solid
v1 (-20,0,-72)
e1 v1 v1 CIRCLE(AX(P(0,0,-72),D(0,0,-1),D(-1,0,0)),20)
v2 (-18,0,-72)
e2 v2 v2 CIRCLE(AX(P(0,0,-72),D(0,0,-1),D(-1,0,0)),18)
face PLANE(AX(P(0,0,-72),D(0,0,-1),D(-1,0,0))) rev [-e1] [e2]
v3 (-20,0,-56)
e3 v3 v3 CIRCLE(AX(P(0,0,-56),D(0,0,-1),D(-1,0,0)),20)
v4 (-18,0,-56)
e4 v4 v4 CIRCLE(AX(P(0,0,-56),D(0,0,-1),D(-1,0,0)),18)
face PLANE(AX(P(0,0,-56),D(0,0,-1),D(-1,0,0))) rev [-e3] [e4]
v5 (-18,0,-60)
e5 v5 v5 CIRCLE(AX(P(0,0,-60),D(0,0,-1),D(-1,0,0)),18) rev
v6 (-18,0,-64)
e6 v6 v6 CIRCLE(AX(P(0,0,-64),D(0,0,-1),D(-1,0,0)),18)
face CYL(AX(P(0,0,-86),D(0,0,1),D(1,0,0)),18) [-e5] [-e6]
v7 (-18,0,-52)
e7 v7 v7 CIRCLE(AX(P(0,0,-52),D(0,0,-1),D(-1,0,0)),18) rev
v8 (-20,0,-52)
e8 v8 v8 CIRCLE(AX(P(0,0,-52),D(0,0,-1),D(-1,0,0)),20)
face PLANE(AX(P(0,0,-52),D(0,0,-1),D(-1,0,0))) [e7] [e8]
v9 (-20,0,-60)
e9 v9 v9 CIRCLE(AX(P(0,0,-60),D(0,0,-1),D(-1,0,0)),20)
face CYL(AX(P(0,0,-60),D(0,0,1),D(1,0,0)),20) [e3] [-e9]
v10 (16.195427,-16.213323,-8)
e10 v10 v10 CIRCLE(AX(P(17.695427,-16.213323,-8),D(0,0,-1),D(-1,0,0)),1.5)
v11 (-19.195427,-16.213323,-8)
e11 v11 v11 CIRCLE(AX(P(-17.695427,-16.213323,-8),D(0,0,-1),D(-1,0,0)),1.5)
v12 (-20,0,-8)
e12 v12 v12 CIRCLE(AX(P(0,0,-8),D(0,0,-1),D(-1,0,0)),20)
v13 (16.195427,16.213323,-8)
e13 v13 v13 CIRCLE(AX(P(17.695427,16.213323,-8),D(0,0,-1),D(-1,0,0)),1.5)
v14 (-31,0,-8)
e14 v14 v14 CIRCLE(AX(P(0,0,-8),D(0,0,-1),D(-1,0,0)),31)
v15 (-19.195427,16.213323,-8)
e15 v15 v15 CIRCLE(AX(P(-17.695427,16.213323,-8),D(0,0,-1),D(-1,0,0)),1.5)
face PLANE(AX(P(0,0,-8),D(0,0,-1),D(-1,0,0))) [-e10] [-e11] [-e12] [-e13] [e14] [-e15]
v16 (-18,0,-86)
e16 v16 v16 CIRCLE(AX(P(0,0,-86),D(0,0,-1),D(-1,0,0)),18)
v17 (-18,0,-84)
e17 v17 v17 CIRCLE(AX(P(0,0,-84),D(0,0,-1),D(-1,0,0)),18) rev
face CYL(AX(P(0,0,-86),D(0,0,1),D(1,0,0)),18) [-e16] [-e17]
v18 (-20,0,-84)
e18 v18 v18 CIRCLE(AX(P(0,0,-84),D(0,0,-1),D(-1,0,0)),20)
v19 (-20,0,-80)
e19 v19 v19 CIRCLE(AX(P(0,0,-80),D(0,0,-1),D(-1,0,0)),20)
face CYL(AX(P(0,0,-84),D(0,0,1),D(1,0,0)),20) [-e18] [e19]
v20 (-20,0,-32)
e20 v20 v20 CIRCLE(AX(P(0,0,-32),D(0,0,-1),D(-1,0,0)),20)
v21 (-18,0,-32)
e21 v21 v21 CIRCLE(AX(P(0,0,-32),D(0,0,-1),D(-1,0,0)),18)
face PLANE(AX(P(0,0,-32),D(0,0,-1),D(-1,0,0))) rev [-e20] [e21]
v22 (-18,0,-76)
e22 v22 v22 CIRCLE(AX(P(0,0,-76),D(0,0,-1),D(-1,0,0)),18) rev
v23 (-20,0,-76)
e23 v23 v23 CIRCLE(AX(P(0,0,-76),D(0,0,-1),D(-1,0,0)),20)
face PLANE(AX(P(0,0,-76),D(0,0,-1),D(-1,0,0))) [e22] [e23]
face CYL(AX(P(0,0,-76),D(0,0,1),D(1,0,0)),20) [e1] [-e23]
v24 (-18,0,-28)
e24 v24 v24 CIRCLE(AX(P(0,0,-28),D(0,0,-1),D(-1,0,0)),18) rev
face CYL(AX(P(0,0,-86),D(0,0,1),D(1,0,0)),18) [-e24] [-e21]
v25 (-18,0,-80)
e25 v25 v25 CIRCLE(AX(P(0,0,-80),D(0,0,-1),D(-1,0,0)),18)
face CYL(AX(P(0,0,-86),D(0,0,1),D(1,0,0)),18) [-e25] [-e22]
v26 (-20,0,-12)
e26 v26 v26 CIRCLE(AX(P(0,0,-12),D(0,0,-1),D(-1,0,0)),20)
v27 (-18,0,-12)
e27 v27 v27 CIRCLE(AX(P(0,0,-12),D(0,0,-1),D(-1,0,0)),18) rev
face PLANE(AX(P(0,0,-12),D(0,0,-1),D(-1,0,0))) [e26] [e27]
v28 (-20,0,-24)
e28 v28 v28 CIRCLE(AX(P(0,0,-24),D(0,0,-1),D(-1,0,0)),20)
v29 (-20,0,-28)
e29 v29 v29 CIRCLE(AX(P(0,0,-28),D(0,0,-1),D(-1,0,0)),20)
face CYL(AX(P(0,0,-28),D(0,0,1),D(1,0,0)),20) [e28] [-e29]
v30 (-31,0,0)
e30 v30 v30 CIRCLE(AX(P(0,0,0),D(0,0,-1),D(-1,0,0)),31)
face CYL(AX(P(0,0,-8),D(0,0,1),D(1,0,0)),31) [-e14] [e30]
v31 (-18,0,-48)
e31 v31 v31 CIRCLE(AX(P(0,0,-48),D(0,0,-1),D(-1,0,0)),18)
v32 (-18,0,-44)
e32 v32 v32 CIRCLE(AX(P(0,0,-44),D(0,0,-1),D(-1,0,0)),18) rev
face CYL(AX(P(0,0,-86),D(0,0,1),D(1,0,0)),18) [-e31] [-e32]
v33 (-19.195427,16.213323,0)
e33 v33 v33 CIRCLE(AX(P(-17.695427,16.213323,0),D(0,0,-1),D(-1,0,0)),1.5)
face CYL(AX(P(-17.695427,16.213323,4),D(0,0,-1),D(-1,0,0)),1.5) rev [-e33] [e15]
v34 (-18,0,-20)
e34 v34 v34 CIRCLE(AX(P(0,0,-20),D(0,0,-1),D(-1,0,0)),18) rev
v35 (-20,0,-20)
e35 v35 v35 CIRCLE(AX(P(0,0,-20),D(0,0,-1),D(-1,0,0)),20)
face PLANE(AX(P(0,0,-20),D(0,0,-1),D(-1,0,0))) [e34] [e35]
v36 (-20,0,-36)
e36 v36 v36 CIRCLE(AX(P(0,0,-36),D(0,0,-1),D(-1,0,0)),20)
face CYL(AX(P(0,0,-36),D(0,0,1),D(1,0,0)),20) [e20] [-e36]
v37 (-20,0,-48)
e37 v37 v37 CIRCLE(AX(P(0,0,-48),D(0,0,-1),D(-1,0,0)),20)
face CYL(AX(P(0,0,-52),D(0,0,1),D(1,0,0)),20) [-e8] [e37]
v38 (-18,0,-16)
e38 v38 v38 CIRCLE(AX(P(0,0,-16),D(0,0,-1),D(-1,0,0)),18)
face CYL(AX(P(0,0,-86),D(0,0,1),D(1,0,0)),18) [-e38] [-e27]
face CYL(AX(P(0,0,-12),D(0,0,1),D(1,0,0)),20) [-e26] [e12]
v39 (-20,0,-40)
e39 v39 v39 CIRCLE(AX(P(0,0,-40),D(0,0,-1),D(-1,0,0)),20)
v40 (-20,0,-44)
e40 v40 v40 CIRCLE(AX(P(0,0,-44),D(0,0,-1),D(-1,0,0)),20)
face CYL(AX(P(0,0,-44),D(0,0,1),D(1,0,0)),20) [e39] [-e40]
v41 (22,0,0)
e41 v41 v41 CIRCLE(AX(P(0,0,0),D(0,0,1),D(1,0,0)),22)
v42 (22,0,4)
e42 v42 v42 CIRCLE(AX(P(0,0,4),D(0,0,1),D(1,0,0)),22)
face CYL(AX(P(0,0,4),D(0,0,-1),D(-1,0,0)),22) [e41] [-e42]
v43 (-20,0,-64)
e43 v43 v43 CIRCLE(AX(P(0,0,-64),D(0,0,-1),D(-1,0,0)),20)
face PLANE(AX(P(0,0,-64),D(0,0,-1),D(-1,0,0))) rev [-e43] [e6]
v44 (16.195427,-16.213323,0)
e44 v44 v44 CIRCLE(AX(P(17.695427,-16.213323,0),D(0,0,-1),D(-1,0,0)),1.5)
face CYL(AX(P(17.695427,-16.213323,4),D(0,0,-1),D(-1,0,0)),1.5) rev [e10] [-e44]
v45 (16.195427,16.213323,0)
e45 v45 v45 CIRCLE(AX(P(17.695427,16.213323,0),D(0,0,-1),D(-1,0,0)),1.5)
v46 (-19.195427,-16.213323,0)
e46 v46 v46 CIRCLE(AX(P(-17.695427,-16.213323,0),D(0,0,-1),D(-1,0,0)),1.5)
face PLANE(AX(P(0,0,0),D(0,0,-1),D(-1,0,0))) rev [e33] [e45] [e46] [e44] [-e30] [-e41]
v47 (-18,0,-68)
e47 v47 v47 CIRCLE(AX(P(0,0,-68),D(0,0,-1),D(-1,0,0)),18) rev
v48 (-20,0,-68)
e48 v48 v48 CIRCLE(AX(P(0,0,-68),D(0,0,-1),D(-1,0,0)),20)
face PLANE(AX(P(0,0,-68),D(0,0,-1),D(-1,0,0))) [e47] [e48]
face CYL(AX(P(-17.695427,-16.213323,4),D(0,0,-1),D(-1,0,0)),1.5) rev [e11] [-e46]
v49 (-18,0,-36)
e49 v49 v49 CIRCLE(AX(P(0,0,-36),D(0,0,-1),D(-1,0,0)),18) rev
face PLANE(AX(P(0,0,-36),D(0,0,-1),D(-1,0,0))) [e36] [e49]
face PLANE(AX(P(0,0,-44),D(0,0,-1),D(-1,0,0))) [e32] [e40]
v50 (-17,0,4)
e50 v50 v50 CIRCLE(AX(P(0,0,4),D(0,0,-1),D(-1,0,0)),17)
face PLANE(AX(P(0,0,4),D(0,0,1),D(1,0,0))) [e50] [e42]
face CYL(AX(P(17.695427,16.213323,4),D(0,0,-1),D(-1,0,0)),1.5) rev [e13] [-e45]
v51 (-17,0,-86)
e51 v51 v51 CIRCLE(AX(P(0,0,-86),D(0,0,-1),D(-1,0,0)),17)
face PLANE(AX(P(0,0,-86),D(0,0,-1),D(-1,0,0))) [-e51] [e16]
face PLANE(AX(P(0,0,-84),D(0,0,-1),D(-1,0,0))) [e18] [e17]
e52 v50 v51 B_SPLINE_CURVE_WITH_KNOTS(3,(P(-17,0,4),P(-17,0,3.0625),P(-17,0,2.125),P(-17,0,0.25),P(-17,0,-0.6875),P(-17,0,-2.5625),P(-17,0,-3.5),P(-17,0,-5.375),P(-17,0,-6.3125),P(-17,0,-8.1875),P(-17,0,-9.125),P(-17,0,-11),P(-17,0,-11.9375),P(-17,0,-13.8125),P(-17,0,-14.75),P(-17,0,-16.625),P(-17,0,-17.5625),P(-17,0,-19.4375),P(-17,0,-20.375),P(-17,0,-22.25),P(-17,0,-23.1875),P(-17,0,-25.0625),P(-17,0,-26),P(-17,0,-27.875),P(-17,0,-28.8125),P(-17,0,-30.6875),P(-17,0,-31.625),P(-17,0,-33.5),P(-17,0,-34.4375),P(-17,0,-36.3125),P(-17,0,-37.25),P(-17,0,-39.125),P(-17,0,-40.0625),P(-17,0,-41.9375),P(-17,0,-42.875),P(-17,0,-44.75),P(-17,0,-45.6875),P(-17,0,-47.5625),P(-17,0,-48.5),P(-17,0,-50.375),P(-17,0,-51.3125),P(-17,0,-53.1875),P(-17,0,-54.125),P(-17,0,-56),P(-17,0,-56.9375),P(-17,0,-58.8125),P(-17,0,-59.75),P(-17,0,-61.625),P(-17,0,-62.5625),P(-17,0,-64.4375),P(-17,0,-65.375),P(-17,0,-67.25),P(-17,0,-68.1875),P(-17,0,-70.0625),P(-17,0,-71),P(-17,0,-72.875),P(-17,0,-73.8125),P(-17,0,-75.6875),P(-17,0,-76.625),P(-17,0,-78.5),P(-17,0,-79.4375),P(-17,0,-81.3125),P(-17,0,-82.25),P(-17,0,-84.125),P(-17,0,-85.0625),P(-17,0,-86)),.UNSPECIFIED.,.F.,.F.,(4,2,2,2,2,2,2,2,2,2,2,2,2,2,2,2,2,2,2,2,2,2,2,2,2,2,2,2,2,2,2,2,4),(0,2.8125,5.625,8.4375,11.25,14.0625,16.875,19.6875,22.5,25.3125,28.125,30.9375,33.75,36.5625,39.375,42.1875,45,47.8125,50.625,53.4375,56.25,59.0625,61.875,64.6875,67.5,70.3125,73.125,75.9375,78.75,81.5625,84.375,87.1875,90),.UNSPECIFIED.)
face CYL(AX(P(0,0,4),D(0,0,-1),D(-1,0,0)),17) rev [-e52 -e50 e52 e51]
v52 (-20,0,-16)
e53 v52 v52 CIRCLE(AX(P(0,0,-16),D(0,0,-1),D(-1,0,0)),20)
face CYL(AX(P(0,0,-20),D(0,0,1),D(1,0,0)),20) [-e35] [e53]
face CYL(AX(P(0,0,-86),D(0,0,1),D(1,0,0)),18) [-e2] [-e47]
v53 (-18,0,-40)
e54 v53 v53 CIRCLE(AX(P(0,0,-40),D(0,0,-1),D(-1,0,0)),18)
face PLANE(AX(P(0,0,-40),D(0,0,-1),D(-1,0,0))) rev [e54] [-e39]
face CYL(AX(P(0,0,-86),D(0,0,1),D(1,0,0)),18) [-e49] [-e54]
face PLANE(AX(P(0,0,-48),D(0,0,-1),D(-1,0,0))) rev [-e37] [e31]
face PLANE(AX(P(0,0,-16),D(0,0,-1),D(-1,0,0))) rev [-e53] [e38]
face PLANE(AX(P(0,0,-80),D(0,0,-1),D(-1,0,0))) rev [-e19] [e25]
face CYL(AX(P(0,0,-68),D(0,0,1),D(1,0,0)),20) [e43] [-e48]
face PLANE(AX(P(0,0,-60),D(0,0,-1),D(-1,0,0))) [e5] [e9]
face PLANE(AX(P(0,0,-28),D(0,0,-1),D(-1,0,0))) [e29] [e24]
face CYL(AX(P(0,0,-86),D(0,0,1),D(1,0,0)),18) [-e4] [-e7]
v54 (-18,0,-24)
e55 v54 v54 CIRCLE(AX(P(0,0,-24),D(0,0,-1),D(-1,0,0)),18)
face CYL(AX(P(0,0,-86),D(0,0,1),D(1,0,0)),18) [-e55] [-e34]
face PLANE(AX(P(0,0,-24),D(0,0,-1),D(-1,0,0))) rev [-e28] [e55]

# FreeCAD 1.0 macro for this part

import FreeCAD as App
import Part
import Sketcher

V = App.Vector

doc = App.newDocument("Part")
body = doc.addObject("PartDesign::Body", "Body")

# Sketch on XY plane
sketch1 = body.newObject("Sketcher::SketchObject", "Sketch")
sketch1.AttachmentSupport = (doc.getObject("XY_Plane"), [""])
sketch1.MapMode = "FlatFace"
sketch1.addGeometry(Part.Circle(V(0, 0, 0), V(0, 0, 1), 22), False)
sketch1.addConstraint(Sketcher.Constraint("Coincident", 0, 3, -1, 1))
sketch1.addConstraint(Sketcher.Constraint("Diameter", 0, 44.0))
pad1 = body.newObject("PartDesign::Pad", "Pad")
pad1.Profile = sketch1
pad1.Length = 4

# Sketch on XY plane
sketch2 = body.newObject("Sketcher::SketchObject", "Sketch001")
sketch2.AttachmentSupport = (doc.getObject("XY_Plane"), [""])
sketch2.MapMode = "FlatFace"
sketch2.addGeometry(Part.Circle(V(0, 0, 0), V(0, 0, 1), 31), False)
sketch2.addConstraint(Sketcher.Constraint("Coincident", 0, 3, -1, 1))
sketch2.addConstraint(Sketcher.Constraint("Diameter", 0, 62.0))
pad2 = body.newObject("PartDesign::Pad", "Pad001")
pad2.Profile = sketch2
pad2.Length = 8
pad2.Reversed = True

# Sketch on XY plane
sketch3 = body.newObject("Sketcher::SketchObject", "Sketch002")
sketch3.AttachmentSupport = (doc.getObject("XY_Plane"), [""])
sketch3.MapMode = "FlatFace"
sketch3.AttachmentOffset = App.Placement(V(0, 0, -8), App.Rotation())
sketch3.addGeometry(Part.Circle(V(17.7, 16.2, 0), V(0, 0, 1), 1.5), False)
sketch3.addGeometry(Part.Circle(V(-17.7, 16.2, 0), V(0, 0, 1), 1.5), False)
sketch3.addGeometry(Part.Circle(V(-17.7, -16.2, 0), V(0, 0, 1), 1.5), False)
sketch3.addGeometry(Part.Circle(V(17.7, -16.2, 0), V(0, 0, 1), 1.5), False)
sketch3.addConstraint(Sketcher.Constraint("Equal", 0, 1))
sketch3.addConstraint(Sketcher.Constraint("Equal", 1, 2))
sketch3.addConstraint(Sketcher.Constraint("Equal", 2, 3))
sketch3.addConstraint(Sketcher.Constraint("Symmetric", 0, 3, 2, 3, -1, 1))
sketch3.addConstraint(Sketcher.Constraint("Symmetric", 1, 3, 3, 3, -1, 1))
sketch3.addConstraint(Sketcher.Constraint("Symmetric", 0, 3, 1, 3, -2))
sketch3.addConstraint(Sketcher.Constraint("Diameter", 0, 3.0))
sketch3.addConstraint(Sketcher.Constraint("DistanceX", -1, 1, 0, 3, 17.695427))
sketch3.addConstraint(Sketcher.Constraint("DistanceY", -1, 1, 0, 3, 16.213323))
pocket1 = body.newObject("PartDesign::Pocket", "Pocket")
pocket1.Profile = sketch3
pocket1.Type = "ThroughAll"
pocket1.Reversed = True

# Sketch on XY plane
sketch4 = body.newObject("Sketcher::SketchObject", "Sketch003")
sketch4.AttachmentSupport = (doc.getObject("XY_Plane"), [""])
sketch4.MapMode = "FlatFace"
sketch4.AttachmentOffset = App.Placement(V(0, 0, -8), App.Rotation())
sketch4.addGeometry(Part.Circle(V(0, 0, 0), V(0, 0, 1), 18), False)
sketch4.addConstraint(Sketcher.Constraint("Coincident", 0, 3, -1, 1))
sketch4.addConstraint(Sketcher.Constraint("Diameter", 0, 36.0))
pad3 = body.newObject("PartDesign::Pad", "Pad002")
pad3.Profile = sketch4
pad3.Length = 78
pad3.Reversed = True

# Sketch on XY plane
sketch5 = body.newObject("Sketcher::SketchObject", "Sketch004")
sketch5.AttachmentSupport = (doc.getObject("XY_Plane"), [""])
sketch5.MapMode = "FlatFace"
sketch5.AttachmentOffset = App.Placement(V(0, 0, -86), App.Rotation())
sketch5.addGeometry(Part.Circle(V(0, 0, 0), V(0, 0, 1), 17), False)
sketch5.addConstraint(Sketcher.Constraint("Coincident", 0, 3, -1, 1))
sketch5.addConstraint(Sketcher.Constraint("Diameter", 0, 34.0))
pocket2 = body.newObject("PartDesign::Pocket", "Pocket001")
pocket2.Profile = sketch5
pocket2.Type = "ThroughAll"
pocket2.Reversed = True

# Sketch on XY plane
sketch6 = body.newObject("Sketcher::SketchObject", "Sketch005")
sketch6.AttachmentSupport = (doc.getObject("XY_Plane"), [""])
sketch6.MapMode = "FlatFace"
sketch6.AttachmentOffset = App.Placement(V(0, 0, -8), App.Rotation())
sketch6.addGeometry(Part.Circle(V(0, 0, 0), V(0, 0, 1), 20), False)
sketch6.addGeometry(Part.Circle(V(0, 0, 0), V(0, 0, 1), 18), False)
sketch6.addConstraint(Sketcher.Constraint("Coincident", 0, 3, -1, 1))
sketch6.addConstraint(Sketcher.Constraint("Coincident", 1, 3, -1, 1))
sketch6.addConstraint(Sketcher.Constraint("Diameter", 0, 40.0))
sketch6.addConstraint(Sketcher.Constraint("Diameter", 1, 36.0))
pad4 = body.newObject("PartDesign::Pad", "Pad003")
pad4.Profile = sketch6
pad4.Length = 4
pad4.Reversed = True
doc.recompute()

linearpattern = body.newObject("PartDesign::LinearPattern", "LinearPattern")
linearpattern.Originals = [pad4]
linearpattern.Direction = (doc.getObject("Z_Axis"), [""])
linearpattern.Mode = "offset"
linearpattern.Offset = 8
linearpattern.Occurrences = 10
linearpattern.Reversed = True
body.Tip = linearpattern

doc.recompute()
